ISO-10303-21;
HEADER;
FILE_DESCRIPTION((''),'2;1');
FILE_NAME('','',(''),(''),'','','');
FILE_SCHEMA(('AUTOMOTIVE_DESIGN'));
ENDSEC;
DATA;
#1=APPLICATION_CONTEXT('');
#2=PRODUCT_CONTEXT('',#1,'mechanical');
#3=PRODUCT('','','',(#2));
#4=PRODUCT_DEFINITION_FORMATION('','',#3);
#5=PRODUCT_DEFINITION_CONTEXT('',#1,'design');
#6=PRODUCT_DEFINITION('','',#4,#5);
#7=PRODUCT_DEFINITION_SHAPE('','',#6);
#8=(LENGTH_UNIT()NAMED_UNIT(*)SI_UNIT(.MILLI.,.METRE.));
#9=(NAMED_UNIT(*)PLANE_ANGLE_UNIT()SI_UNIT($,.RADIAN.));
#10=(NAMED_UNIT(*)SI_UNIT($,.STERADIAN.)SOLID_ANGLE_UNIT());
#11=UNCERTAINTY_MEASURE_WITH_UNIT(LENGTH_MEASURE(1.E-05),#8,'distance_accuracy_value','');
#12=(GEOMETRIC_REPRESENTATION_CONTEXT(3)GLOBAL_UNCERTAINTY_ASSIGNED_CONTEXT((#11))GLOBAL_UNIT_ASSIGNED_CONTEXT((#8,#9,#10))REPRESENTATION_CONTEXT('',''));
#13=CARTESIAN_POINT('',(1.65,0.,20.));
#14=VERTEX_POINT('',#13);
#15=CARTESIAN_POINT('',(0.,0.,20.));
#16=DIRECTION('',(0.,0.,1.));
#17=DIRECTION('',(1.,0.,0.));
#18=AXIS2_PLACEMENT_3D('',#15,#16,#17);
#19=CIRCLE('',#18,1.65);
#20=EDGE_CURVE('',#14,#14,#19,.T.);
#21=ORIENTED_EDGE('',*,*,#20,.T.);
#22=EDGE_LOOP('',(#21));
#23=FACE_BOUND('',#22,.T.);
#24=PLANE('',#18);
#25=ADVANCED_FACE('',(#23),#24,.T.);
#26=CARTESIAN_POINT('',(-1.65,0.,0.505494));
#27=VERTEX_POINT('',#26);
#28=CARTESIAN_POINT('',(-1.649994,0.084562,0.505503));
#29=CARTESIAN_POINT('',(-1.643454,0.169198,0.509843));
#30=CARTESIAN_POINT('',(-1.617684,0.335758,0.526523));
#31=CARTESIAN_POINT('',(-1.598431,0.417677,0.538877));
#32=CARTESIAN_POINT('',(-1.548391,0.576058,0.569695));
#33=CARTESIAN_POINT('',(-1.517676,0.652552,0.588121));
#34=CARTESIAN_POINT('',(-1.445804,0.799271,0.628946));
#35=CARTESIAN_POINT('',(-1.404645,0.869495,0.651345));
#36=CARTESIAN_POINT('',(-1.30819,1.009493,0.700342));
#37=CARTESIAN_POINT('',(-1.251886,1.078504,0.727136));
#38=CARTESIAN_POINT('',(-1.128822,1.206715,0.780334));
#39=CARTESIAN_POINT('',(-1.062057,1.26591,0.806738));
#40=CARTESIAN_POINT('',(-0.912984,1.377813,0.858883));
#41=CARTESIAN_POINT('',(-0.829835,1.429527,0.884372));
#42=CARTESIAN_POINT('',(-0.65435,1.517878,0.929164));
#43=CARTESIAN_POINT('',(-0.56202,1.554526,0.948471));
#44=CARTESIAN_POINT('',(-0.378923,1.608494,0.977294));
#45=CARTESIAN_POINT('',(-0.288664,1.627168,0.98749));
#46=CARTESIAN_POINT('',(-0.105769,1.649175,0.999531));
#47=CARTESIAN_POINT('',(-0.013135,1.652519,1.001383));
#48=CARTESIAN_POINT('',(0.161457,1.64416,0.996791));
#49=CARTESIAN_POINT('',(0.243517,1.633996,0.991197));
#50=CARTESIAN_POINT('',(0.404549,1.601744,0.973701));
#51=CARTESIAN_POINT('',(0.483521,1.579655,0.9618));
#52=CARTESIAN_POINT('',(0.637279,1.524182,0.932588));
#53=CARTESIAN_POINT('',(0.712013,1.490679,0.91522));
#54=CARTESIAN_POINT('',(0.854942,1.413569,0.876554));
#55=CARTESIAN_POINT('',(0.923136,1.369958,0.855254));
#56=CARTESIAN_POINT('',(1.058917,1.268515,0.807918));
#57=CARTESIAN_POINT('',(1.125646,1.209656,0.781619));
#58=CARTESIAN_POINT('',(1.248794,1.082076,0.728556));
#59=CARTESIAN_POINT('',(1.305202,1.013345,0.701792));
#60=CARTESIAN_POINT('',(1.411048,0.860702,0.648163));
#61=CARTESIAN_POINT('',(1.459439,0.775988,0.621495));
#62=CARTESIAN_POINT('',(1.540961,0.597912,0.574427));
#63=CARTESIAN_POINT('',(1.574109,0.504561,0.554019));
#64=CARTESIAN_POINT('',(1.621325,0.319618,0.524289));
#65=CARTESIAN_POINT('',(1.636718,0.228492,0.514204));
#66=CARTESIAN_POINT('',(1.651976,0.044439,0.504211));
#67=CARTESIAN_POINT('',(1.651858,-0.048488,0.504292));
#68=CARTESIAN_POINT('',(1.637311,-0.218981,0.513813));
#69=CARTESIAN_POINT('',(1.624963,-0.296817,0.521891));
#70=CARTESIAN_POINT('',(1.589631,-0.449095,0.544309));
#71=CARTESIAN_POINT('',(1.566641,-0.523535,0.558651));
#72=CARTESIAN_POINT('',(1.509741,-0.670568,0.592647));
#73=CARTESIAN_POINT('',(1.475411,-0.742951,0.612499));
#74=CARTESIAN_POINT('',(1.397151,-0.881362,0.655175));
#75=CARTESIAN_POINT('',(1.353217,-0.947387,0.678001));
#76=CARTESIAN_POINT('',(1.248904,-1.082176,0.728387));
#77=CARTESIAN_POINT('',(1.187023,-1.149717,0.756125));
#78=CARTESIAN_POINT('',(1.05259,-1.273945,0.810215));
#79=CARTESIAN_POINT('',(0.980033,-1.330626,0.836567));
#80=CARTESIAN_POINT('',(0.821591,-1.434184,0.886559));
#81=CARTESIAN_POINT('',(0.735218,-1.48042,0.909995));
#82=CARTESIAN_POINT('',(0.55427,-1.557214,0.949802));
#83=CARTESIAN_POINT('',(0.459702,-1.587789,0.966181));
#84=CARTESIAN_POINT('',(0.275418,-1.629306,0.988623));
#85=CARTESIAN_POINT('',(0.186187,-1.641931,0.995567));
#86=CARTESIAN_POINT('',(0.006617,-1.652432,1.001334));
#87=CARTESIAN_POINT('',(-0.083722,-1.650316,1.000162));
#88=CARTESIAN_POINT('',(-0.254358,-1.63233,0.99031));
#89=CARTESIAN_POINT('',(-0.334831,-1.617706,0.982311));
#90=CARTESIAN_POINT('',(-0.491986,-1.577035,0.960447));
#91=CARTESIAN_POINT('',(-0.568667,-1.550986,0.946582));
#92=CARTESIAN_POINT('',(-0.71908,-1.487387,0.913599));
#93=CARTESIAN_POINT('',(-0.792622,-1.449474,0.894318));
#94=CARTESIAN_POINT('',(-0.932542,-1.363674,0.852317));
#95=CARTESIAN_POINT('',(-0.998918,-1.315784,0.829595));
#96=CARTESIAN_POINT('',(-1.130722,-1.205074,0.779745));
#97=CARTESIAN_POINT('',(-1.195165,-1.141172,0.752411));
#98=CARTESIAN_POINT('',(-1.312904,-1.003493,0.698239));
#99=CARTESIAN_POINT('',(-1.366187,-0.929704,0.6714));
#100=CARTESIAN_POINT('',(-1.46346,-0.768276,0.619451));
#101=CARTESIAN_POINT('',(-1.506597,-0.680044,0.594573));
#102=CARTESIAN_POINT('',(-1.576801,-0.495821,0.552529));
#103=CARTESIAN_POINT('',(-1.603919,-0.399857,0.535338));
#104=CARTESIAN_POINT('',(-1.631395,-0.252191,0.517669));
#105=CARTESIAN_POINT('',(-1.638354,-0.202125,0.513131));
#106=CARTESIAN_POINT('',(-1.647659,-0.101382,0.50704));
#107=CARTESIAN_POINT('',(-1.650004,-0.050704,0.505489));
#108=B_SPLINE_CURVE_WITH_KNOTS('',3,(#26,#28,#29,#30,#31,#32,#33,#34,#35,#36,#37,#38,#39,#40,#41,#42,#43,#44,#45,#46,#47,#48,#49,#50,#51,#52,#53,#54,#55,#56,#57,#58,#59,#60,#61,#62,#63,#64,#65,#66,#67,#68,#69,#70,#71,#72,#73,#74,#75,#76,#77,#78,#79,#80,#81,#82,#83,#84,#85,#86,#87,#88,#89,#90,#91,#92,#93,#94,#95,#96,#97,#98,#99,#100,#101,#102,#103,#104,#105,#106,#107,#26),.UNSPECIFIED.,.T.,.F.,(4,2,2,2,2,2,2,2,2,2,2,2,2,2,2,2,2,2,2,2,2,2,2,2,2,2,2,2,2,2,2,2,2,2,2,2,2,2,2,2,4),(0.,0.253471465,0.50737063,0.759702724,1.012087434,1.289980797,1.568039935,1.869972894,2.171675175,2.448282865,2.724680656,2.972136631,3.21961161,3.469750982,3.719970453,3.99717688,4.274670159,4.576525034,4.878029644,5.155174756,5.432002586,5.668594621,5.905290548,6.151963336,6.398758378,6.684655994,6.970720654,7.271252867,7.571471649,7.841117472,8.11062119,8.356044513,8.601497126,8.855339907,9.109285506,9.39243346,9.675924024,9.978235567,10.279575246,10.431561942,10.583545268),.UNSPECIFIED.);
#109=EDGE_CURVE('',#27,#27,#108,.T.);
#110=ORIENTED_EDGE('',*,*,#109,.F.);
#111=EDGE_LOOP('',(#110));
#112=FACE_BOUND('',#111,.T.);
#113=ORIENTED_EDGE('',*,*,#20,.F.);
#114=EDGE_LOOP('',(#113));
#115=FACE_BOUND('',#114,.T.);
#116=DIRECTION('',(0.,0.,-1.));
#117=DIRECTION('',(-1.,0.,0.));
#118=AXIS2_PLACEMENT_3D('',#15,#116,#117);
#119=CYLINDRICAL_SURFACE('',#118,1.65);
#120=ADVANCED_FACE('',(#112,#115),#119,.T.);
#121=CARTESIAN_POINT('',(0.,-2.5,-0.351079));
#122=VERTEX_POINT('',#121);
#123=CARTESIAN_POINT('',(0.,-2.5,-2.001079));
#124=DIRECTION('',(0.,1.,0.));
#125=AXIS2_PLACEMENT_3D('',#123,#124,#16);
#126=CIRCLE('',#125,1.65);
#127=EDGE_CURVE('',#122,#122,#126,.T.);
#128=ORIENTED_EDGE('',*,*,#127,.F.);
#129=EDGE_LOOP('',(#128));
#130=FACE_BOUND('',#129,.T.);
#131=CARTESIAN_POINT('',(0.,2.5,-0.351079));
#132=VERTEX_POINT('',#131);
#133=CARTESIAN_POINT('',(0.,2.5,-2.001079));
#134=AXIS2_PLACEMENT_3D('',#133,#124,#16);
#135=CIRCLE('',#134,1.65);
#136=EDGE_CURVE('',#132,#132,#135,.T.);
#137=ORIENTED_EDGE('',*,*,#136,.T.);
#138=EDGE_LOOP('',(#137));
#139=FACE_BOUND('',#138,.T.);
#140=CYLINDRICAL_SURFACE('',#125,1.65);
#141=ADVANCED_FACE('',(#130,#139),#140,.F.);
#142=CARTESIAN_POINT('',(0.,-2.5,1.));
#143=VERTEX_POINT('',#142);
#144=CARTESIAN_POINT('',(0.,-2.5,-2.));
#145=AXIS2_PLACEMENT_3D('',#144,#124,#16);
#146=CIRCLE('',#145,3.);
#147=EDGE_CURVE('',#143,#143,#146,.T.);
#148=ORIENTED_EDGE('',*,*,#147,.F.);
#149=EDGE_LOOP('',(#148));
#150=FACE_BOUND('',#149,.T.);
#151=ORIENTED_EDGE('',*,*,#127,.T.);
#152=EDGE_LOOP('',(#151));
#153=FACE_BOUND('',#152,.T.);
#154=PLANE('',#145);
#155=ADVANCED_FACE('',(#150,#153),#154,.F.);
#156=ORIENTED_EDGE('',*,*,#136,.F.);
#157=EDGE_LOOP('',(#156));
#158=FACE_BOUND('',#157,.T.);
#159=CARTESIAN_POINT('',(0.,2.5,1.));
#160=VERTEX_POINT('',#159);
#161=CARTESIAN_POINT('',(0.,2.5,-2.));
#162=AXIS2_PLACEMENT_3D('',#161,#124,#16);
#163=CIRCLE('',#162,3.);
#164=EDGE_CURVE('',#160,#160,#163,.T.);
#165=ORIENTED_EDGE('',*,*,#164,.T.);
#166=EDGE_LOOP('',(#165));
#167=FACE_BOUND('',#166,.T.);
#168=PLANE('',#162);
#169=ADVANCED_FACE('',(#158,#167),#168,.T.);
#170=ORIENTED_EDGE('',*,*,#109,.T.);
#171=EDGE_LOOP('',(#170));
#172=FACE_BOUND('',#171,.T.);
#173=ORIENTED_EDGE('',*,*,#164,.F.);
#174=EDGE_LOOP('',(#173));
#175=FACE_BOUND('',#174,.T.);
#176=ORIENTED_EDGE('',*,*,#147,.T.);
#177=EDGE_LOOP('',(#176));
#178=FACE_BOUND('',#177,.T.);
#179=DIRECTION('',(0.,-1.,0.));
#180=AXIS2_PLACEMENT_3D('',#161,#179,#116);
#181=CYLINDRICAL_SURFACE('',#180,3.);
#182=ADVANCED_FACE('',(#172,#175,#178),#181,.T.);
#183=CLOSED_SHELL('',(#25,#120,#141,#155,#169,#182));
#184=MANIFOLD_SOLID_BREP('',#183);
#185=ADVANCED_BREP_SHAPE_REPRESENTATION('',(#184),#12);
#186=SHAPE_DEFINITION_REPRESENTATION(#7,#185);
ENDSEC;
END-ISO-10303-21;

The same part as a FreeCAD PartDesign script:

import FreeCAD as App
import Part
import Sketcher
from FreeCAD import Vector
Q = App.Units.Quantity

doc = App.newDocument("Part")
params = doc.addObject("Spreadsheet::Sheet", "Params")
for row, (alias, value) in enumerate([
    ("sketch1_diameter", "3.3 mm"),
    ("pad1_length", "20 mm"),
    ("sketch2_diameter", "6 mm"),
    ("pad2_length", "5 mm"),
    ("sketch3_diameter", "3.3 mm"),
    ("pocket1_length", "5 mm"),
], start=1):
    params.set(f"A{row}", alias)
    params.set(f"B{row}", "=" + value)
    params.setAlias(f"B{row}", alias)

body = doc.addObject("PartDesign::Body", "Body")

sketch1 = body.newObject("Sketcher::SketchObject", "Sketch")
sketch1.AttachmentSupport = (doc.getObject("XY_Plane"), [""])
sketch1.MapMode = "FlatFace"
sketch1.addGeometry(Part.Circle(Vector(0, 0, 0), Vector(0, 0, 1), 1.65), False)
sketch1.addConstraint([
    Sketcher.Constraint("Coincident", 0, 3, -1, 1),
    Sketcher.Constraint("Diameter", 0, Q("3.3 mm")),
])
sketch1.setExpression("Constraints[1]", "Params.sketch1_diameter")
pad1 = body.newObject("PartDesign::Pad", "Pad")
pad1.Profile = sketch1
pad1.setExpression("Length", "Params.pad1_length")

sketch2 = body.newObject("Sketcher::SketchObject", "Sketch001")
sketch2.AttachmentSupport = (doc.getObject("XZ_Plane"), [""])
sketch2.MapMode = "FlatFace"
sketch2.addGeometry(Part.Circle(Vector(0, -2, 0), Vector(0, 0, 1), 3), False)
sketch2.addConstraint([
    Sketcher.Constraint("PointOnObject", 0, 3, -2),
    Sketcher.Constraint("Diameter", 0, Q("6 mm")),
    Sketcher.Constraint("DistanceY", 0, 3, -1, 1, Q("2 mm")),
])
sketch2.setExpression("Constraints[1]", "Params.sketch2_diameter")
pad2 = body.newObject("PartDesign::Pad", "Pad001")
pad2.Profile = sketch2
pad2.setExpression("Length", "Params.pad2_length")
pad2.Midplane = True

sketch3 = body.newObject("Sketcher::SketchObject", "Sketch002")
sketch3.AttachmentSupport = (doc.getObject("XZ_Plane"), [""])
sketch3.MapMode = "FlatFace"
sketch3.AttachmentOffset = App.Placement(Vector(0, 0, -2.5), App.Rotation())
sketch3.addGeometry(Part.Circle(Vector(0, -2.001079, 0), Vector(0, 0, 1), 1.65), False)
sketch3.addConstraint([
    Sketcher.Constraint("PointOnObject", 0, 3, -2),
    Sketcher.Constraint("Diameter", 0, Q("3.3 mm")),
    Sketcher.Constraint("DistanceY", 0, 3, -1, 1, Q("2.001079 mm")),
])
sketch3.setExpression("Constraints[1]", "Params.sketch3_diameter")
pocket1 = body.newObject("PartDesign::Pocket", "Pocket")
pocket1.Profile = sketch3
pocket1.setExpression("Length", "Params.pocket1_length")
pocket1.Reversed = True

doc.recompute()
